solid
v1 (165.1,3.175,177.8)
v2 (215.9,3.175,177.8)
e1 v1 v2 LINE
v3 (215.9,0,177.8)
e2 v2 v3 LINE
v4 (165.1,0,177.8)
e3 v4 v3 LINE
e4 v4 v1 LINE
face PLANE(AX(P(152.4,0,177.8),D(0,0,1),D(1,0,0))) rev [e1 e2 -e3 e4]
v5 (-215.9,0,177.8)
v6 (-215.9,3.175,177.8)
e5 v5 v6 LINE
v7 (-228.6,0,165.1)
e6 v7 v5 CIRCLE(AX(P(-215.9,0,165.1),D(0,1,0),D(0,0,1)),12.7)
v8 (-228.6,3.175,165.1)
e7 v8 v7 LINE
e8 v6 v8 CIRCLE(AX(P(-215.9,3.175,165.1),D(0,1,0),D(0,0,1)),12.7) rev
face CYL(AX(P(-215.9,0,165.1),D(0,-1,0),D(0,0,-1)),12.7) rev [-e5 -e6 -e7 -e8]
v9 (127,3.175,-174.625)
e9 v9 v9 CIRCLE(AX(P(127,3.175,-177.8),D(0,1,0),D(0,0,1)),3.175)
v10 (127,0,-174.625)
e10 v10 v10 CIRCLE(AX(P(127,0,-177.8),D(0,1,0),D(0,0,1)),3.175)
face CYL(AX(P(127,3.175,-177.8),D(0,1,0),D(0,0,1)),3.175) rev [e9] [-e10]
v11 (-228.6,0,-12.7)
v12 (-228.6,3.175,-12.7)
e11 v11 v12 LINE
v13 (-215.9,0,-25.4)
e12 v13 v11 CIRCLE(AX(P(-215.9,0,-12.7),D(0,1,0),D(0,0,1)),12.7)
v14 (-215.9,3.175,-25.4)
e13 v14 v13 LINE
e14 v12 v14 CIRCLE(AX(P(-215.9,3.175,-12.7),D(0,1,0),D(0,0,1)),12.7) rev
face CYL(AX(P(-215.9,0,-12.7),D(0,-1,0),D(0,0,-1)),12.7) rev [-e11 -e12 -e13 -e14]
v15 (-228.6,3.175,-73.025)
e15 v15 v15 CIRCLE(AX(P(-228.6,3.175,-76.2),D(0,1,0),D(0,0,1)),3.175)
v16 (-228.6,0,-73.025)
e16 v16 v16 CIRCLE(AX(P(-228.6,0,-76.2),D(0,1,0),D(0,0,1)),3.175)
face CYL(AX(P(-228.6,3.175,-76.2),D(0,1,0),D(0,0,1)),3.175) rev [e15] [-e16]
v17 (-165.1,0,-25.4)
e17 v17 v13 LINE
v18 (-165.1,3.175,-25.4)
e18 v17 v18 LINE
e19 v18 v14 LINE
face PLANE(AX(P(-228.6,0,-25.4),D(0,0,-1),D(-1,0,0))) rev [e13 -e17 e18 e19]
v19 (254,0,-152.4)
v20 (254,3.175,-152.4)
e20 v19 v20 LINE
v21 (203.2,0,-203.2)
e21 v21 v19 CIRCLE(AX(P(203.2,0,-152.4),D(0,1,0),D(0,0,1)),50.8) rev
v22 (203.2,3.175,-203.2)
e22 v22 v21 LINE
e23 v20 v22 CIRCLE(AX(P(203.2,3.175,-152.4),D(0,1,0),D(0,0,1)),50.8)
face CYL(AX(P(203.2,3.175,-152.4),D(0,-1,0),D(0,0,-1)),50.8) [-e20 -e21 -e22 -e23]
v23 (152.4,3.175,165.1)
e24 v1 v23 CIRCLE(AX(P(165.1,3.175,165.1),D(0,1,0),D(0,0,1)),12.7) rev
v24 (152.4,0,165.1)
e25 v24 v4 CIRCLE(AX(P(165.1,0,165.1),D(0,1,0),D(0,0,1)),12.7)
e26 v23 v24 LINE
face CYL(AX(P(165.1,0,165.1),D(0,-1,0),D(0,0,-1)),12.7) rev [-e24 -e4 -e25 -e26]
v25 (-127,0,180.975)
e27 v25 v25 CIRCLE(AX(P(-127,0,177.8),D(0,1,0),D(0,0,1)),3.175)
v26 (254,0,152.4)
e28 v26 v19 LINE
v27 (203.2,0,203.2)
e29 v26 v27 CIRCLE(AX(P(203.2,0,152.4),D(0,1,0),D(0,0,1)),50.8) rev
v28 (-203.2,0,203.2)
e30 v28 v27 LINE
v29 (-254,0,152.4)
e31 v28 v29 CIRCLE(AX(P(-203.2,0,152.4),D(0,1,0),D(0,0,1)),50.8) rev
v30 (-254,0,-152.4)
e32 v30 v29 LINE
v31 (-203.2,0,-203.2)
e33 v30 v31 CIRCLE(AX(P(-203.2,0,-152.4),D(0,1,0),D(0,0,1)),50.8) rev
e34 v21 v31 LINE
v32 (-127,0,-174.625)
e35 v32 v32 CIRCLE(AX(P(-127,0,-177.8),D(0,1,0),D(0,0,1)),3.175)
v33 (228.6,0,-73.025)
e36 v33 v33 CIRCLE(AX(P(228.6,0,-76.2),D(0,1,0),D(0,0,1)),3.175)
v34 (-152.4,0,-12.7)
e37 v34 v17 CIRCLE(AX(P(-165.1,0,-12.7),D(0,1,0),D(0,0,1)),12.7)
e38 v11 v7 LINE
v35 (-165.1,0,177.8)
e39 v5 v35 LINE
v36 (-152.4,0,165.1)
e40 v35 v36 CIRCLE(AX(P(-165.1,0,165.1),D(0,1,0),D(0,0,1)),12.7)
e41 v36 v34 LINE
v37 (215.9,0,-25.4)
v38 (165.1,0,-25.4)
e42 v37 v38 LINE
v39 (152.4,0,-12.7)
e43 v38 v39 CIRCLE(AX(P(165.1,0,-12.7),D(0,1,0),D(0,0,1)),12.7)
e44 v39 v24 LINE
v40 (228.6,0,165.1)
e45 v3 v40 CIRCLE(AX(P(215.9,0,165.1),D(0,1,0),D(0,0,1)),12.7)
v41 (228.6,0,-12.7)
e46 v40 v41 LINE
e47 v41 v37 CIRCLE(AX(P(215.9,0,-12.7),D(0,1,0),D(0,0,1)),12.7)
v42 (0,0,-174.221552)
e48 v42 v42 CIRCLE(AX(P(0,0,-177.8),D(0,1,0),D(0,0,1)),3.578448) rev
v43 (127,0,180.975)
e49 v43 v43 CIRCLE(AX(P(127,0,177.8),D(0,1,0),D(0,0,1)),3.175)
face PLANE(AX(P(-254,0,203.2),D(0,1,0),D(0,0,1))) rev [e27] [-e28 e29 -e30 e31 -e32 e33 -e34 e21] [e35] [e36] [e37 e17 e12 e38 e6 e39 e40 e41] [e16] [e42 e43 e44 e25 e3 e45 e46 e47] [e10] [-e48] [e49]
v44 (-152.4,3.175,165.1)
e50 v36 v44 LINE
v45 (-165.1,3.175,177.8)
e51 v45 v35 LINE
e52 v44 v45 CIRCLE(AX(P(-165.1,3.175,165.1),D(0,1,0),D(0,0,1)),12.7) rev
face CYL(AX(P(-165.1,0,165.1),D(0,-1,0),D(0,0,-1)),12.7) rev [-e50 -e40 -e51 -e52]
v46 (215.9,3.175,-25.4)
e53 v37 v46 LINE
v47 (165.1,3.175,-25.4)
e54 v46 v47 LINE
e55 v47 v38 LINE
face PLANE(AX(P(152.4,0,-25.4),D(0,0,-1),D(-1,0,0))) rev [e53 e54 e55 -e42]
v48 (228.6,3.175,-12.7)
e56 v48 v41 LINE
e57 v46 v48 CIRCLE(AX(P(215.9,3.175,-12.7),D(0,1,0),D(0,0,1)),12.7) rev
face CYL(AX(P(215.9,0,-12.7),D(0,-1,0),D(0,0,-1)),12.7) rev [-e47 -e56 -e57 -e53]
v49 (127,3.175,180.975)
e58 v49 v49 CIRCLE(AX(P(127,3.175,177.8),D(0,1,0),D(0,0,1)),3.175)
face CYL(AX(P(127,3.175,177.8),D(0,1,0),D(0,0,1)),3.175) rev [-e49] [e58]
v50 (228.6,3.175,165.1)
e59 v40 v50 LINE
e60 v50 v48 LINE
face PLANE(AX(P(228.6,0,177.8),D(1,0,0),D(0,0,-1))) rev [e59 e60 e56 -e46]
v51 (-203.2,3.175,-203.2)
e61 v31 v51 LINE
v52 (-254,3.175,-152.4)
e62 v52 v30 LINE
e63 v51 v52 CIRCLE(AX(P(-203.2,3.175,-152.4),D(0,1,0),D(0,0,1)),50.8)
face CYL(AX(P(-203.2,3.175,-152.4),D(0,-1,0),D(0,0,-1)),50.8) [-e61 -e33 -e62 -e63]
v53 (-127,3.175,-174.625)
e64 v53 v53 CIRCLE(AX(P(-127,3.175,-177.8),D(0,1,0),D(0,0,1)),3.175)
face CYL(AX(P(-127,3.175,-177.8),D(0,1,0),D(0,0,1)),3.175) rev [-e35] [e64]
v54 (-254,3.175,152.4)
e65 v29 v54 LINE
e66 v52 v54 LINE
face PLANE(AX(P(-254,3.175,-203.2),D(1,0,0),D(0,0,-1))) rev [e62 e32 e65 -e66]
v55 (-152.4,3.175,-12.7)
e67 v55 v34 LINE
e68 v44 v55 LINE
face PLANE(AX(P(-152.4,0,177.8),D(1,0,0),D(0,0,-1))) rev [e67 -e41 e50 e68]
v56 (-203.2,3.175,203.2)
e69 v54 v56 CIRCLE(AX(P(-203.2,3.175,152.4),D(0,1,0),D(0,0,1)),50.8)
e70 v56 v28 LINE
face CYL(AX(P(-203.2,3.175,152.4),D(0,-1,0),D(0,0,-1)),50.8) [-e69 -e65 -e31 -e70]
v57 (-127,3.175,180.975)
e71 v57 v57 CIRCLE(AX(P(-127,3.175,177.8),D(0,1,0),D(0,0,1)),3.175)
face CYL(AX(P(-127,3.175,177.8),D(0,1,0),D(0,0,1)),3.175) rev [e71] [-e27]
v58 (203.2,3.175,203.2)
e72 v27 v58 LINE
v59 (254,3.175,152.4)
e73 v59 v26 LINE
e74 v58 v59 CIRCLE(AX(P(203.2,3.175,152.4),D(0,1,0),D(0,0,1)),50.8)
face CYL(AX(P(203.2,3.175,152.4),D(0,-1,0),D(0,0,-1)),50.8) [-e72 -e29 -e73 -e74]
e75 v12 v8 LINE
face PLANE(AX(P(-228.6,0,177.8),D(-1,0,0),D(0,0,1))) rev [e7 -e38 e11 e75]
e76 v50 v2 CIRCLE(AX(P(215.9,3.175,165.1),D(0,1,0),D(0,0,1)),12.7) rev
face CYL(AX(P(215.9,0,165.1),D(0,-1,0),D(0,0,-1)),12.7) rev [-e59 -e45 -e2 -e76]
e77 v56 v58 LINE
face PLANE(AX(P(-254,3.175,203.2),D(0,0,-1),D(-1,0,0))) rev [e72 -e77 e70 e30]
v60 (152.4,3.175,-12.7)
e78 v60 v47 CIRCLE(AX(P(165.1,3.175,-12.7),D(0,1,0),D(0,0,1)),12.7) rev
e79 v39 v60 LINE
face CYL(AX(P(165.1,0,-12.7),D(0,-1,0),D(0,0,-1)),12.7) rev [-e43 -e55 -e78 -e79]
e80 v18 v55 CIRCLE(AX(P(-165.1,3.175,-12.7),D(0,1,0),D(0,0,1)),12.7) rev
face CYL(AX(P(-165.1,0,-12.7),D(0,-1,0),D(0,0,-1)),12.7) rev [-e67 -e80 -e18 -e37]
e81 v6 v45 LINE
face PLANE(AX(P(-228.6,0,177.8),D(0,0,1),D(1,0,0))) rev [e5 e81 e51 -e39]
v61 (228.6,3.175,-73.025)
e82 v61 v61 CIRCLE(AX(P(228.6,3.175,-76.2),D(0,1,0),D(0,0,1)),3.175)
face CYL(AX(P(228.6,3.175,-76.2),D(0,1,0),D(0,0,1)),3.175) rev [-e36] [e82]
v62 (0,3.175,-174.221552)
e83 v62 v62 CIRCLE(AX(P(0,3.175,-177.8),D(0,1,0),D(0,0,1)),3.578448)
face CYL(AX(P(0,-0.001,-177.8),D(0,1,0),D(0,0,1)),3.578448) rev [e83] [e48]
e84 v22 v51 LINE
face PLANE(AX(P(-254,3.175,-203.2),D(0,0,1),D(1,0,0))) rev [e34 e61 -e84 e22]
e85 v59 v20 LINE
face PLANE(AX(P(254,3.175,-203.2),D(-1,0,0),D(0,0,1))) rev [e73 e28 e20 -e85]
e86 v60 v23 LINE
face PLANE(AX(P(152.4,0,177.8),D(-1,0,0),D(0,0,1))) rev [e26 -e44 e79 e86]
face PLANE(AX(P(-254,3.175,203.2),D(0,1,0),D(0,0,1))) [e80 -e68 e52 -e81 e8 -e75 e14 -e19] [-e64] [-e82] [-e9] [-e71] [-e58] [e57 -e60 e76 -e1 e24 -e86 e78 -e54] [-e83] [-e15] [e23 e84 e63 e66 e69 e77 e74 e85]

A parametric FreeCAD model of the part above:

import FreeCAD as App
import Part
import Sketcher

V = App.Vector
Q = App.Units.Quantity


def edges_at(feature, points):
    """Names of the edges that pass closest to the given points."""
    edges = feature.Shape.Edges
    near = lambda p: min(range(len(edges)), key=lambda i: edges[i].distToShape(Part.Vertex(*p))[0])
    return sorted({f"Edge{near(p) + 1}" for p in points})


def add_polygon(sketch, points):
    """Adds a closed chain of lines whose ends are joined by coincident constraints."""
    first, n = sketch.GeometryCount, len(points)
    for a, b in zip(points, points[1:] + points[:1]):
        sketch.addGeometry(Part.LineSegment(App.Vector(*a, 0), App.Vector(*b, 0)), False)
    for i in range(n):
        sketch.addConstraint(Sketcher.Constraint("Coincident", first + i, 2, first + (i + 1) % n, 1))

doc = App.newDocument("Part")
body = doc.addObject("PartDesign::Body", "Body")

# Sketch on XZ plane
sketch1 = body.newObject("Sketcher::SketchObject", "Sketch")
sketch1.AttachmentSupport = (doc.getObject("XZ_Plane"), [""])
sketch1.MapMode = "FlatFace"
add_polygon(sketch1, [(-254, -203), (-254, 203), (254, 203), (254, -203)])  # lines 0-3
sketch1.addConstraint(Sketcher.Constraint("Vertical", 0))
sketch1.addConstraint(Sketcher.Constraint("Horizontal", 1))
sketch1.addConstraint(Sketcher.Constraint("Vertical", 2))
sketch1.addConstraint(Sketcher.Constraint("Horizontal", 3))
sketch1.addConstraint(Sketcher.Constraint("Symmetric", 0, 2, 2, 2, -1, 1))
sketch1.addConstraint(Sketcher.Constraint("DistanceX", 1, 1, 1, 2, Q("20 in")))
sketch1.addConstraint(Sketcher.Constraint("DistanceY", 0, 1, 0, 2, Q("16 in")))
pad1 = body.newObject("PartDesign::Pad", "Pad")
pad1.Profile = sketch1
pad1.Length = Q("0.125 in")
pad1.Reversed = True

# Sketch on XZ plane
sketch2 = body.newObject("Sketcher::SketchObject", "Sketch001")
sketch2.AttachmentSupport = (doc.getObject("XZ_Plane"), [""])
sketch2.MapMode = "FlatFace"
sketch2.AttachmentOffset = App.Placement(V(0, 0, -0.125 * 25.4), App.Rotation())
add_polygon(sketch2, [(-229, -25), (-229, 178), (-152, 178), (-152, -25)])  # lines 0-3
add_polygon(sketch2, [(152, -25), (152, 178), (229, 178), (229, -25)])  # lines 4-7
sketch2.addConstraint(Sketcher.Constraint("Vertical", 0))
sketch2.addConstraint(Sketcher.Constraint("Horizontal", 1))
sketch2.addConstraint(Sketcher.Constraint("Vertical", 2))
sketch2.addConstraint(Sketcher.Constraint("Horizontal", 3))
sketch2.addConstraint(Sketcher.Constraint("Vertical", 4))
sketch2.addConstraint(Sketcher.Constraint("Horizontal", 5))
sketch2.addConstraint(Sketcher.Constraint("Vertical", 6))
sketch2.addConstraint(Sketcher.Constraint("Horizontal", 7))
sketch2.addConstraint(Sketcher.Constraint("Symmetric", 1, 2, 4, 2, -2))
sketch2.addConstraint(Sketcher.Constraint("Symmetric", 3, 2, 6, 2, -2))
sketch2.addConstraint(Sketcher.Constraint("DistanceX", 1, 1, 1, 2, Q("3 in")))
sketch2.addConstraint(Sketcher.Constraint("DistanceY", 0, 1, 0, 2, Q("8 in")))
sketch2.addConstraint(Sketcher.Constraint("DistanceX", 0, 2, -1, 1, Q("9 in")))
sketch2.addConstraint(Sketcher.Constraint("DistanceY", -1, 1, 0, 2, Q("7 in")))
pocket1 = body.newObject("PartDesign::Pocket", "Pocket")
pocket1.Profile = sketch2
pocket1.Type = "ThroughAll"
pocket1.Reversed = True
doc.recompute()

fillet = body.newObject("PartDesign::Fillet", "Fillet")
fillet.Base = (pocket1, edges_at(pocket1, [
    (-254, 1.587, -203.2),
    (254, 1.587, -203.2),
    (254, 1.587, 203.2),
    (-254, 1.587, 203.2),
]))
fillet.Radius = Q("2 in")
doc.recompute()

fillet2 = body.newObject("PartDesign::Fillet", "Fillet001")
fillet2.Base = (fillet, edges_at(fillet, [
    (-228.6, 1.587, 177.8),
    (-228.6, 1.587, -25.4),
    (-152.4, 1.587, -25.4),
    (-152.4, 1.587, 177.8),
    (152.4, 1.587, 177.8),
    (152.4, 1.587, -25.4),
    (228.6, 1.587, -25.4),
    (228.6, 1.587, 177.8),
]))
fillet2.Radius = Q("0.5 in")

# Sketch on XZ plane
sketch3 = body.newObject("Sketcher::SketchObject", "Sketch002")
sketch3.AttachmentSupport = (doc.getObject("XZ_Plane"), [""])
sketch3.MapMode = "FlatFace"
sketch3.AttachmentOffset = App.Placement(V(0, 0, -0.125 * 25.4), App.Rotation())
sketch3.addGeometry(Part.Circle(V(-127, -177.8, 0), V(0, 0, 1), 3.2), False)
sketch3.addGeometry(Part.Circle(V(127, -177.8, 0), V(0, 0, 1), 3.2), False)
sketch3.addGeometry(Part.Circle(V(228.6, -76.2, 0), V(0, 0, 1), 3.2), False)
sketch3.addGeometry(Part.Circle(V(-228.6, -76.2, 0), V(0, 0, 1), 3.2), False)
sketch3.addGeometry(Part.Circle(V(-127, 177.8, 0), V(0, 0, 1), 3.2), False)
sketch3.addGeometry(Part.Circle(V(127, 177.8, 0), V(0, 0, 1), 3.2), False)
sketch3.addConstraint(Sketcher.Constraint("Equal", 0, 1))
sketch3.addConstraint(Sketcher.Constraint("Equal", 1, 2))
sketch3.addConstraint(Sketcher.Constraint("Equal", 2, 3))
sketch3.addConstraint(Sketcher.Constraint("Equal", 3, 4))
sketch3.addConstraint(Sketcher.Constraint("Equal", 4, 5))
sketch3.addConstraint(Sketcher.Constraint("Symmetric", 1, 3, 4, 3, -1, 1))
sketch3.addConstraint(Sketcher.Constraint("Symmetric", 0, 3, 5, 3, -1, 1))
sketch3.addConstraint(Sketcher.Constraint("Symmetric", 0, 3, 1, 3, -2))
sketch3.addConstraint(Sketcher.Constraint("Symmetric", 2, 3, 3, 3, -2))
sketch3.addConstraint(Sketcher.Constraint("Diameter", 0, Q("0.25 in")))
sketch3.addConstraint(Sketcher.Constraint("DistanceX", 0, 3, -1, 1, Q("5 in")))
sketch3.addConstraint(Sketcher.Constraint("DistanceY", 0, 3, -1, 1, Q("7 in")))
sketch3.addConstraint(Sketcher.Constraint("DistanceX", -1, 1, 2, 3, Q("9 in")))
sketch3.addConstraint(Sketcher.Constraint("DistanceY", 2, 3, -1, 1, Q("3 in")))
doc.recompute()
hole = body.newObject("PartDesign::Hole", "Hole")
hole.Profile = sketch3
hole.ThreadType = "None"
hole.Diameter = Q("0.25 in")
hole.DepthType = "Dimension"
hole.Depth = Q("1 in")
hole.DrillPoint = "Angled"
hole.DrillPointAngle = 118
hole.Reversed = True

# Sketch on XZ plane
sketch4 = body.newObject("Sketcher::SketchObject", "Sketch003")
sketch4.AttachmentSupport = (doc.getObject("XZ_Plane"), [""])
sketch4.MapMode = "FlatFace"
sketch4.AttachmentOffset = App.Placement(V(0, 0, -0.125 * 25.4), App.Rotation())
sketch4.addGeometry(Part.Circle(V(0, -177.8, 0), V(0, 0, 1), 3.6), False)
sketch4.addConstraint(Sketcher.Constraint("PointOnObject", 0, 3, -2))
sketch4.addConstraint(Sketcher.Constraint("DistanceY", 0, 3, -1, 1, Q("7 in")))
sketch4.addConstraint(Sketcher.Constraint("Diameter", 0, 7.156896))
pocket2 = body.newObject("PartDesign::Pocket", "Pocket001")
pocket2.Profile = sketch4
pocket2.Type = "UpToFirst"
pocket2.Reversed = True

doc.recompute()
